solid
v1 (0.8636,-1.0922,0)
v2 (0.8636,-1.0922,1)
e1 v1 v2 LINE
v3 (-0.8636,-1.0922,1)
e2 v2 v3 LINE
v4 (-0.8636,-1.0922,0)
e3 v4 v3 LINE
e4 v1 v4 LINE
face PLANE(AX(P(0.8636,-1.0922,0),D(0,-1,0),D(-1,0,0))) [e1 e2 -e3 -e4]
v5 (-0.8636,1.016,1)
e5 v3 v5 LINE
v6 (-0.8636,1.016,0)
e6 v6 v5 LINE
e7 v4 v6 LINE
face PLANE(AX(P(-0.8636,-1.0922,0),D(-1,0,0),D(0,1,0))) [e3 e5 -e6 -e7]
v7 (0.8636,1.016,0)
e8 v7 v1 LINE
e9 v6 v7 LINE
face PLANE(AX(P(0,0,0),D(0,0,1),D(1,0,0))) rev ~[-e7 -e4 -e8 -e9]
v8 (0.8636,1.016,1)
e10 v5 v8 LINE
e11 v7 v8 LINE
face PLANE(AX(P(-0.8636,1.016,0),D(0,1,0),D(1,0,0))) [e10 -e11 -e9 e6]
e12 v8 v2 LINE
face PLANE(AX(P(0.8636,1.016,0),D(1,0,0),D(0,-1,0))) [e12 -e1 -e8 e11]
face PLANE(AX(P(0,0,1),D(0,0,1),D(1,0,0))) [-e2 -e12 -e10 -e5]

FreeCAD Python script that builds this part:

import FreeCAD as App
import Part
import Sketcher
from FreeCAD import Vector
Q = App.Units.Quantity


def add_polygon(sketch, points):
    """Adds a closed chain of lines whose ends are joined by coincident constraints."""
    first, n = sketch.GeometryCount, len(points)
    for a, b in zip(points, points[1:] + points[:1]):
        sketch.addGeometry(Part.LineSegment(App.Vector(*a, 0), App.Vector(*b, 0)), False)
    for i in range(n):
        sketch.addConstraint(Sketcher.Constraint("Coincident", first + i, 2, first + (i + 1) % n, 1))

doc = App.newDocument("Part")
body = doc.addObject("PartDesign::Body", "Body")

# Sketch on XY plane
sketch1 = doc.addObject("Sketcher::SketchObject", "Sketch")
body.addObject(sketch1)
sketch1.AttachmentSupport = (doc.XY_Plane, [""])
sketch1.MapMode = "FlatFace"
add_polygon(sketch1, [(0.8636, 1.016), (-0.8636, 1.016), (-0.8636, -1.0922), (0.8636, -1.0922)])  # lines 0-3
sketch1.addConstraint([
    Sketcher.Constraint("Horizontal", 0),
    Sketcher.Constraint("Vertical", 1),
    Sketcher.Constraint("Horizontal", 2),
    Sketcher.Constraint("Vertical", 3),
    Sketcher.Constraint("DistanceX", 0, 2, 0, 1, Q("0.068 in")),
    Sketcher.Constraint("DistanceY", 1, 2, 1, 1, Q("0.083 in")),
    Sketcher.Constraint("DistanceY", -1, 1, 0, 2, Q("0.04 in")),
    Sketcher.Constraint("DistanceX", 0, 2, -1, 1, Q("0.034 in")),
])
pad1 = doc.addObject("PartDesign::Pad", "Pad")
body.addObject(pad1)
pad1.Profile = sketch1
pad1.Length = 1

doc.recompute()
